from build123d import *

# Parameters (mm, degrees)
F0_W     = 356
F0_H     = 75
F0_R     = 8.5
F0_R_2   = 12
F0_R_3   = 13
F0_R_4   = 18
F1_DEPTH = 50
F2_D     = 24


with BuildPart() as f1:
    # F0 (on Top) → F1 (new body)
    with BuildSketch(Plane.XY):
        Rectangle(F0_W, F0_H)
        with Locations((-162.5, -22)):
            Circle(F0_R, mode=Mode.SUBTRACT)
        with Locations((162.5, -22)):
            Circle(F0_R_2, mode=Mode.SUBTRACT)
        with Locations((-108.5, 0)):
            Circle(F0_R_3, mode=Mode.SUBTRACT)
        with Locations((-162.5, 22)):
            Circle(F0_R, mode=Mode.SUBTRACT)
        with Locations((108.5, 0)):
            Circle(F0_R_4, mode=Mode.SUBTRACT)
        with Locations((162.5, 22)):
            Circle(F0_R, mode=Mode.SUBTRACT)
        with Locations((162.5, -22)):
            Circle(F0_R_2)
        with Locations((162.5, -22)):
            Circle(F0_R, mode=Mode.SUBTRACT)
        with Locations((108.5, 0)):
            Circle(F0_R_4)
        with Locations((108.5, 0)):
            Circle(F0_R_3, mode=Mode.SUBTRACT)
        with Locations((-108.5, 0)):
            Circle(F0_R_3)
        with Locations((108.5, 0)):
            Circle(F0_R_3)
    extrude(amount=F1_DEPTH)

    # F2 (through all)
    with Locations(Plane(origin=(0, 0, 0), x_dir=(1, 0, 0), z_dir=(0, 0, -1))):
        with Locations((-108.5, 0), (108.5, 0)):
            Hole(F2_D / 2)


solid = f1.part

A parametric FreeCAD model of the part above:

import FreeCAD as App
import Part
import Sketcher
Q = App.Units.Quantity

doc = App.newDocument("Part")
body = doc.addObject("PartDesign::Body", "Body")

sketch1 = body.newObject("Sketcher::SketchObject", "Sketch")
sketch1.AttachmentSupport = (doc.getObject("XY_Plane"), [""])
sketch1.MapMode = "FlatFace"
sketch1.addGeometry([
    Part.LineSegment(App.Vector(-178, 37.5, 0), App.Vector(-178, -37.5, 0)),
    Part.LineSegment(App.Vector(-178, -37.5, 0), App.Vector(178, -37.5, 0)),
    Part.LineSegment(App.Vector(178, -37.5, 0), App.Vector(178, 37.5, 0)),
    Part.LineSegment(App.Vector(178, 37.5, 0), App.Vector(-178, 37.5, 0)),
    Part.Circle(App.Vector(-162.5, -22, 0), App.Vector(0, 0, 1), 8.5),
    Part.Circle(App.Vector(162.5, -22, 0), App.Vector(0, 0, 1), 8.5),
    Part.Circle(App.Vector(-162.5, 22, 0), App.Vector(0, 0, 1), 8.5),
    Part.Circle(App.Vector(162.5, 22, 0), App.Vector(0, 0, 1), 8.5),
], False)
sketch1.addConstraint([
    Sketcher.Constraint("Coincident", 0, 2, 1, 1),
    Sketcher.Constraint("Coincident", 1, 2, 2, 1),
    Sketcher.Constraint("Coincident", 2, 2, 3, 1),
    Sketcher.Constraint("Coincident", 3, 2, 0, 1),
    Sketcher.Constraint("Vertical", 0),
    Sketcher.Constraint("Horizontal", 1),
    Sketcher.Constraint("Vertical", 2),
    Sketcher.Constraint("Horizontal", 3),
    Sketcher.Constraint("Equal", 4, 5),
    Sketcher.Constraint("Equal", 5, 6),
    Sketcher.Constraint("Equal", 6, 7),
    Sketcher.Constraint("Symmetric", 5, 3, 6, 3, -1, 1),
    Sketcher.Constraint("Symmetric", 4, 3, 7, 3, -1, 1),
    Sketcher.Constraint("Symmetric", 0, 2, 2, 2, -1, 1),
    Sketcher.Constraint("Symmetric", 4, 3, 5, 3, -2),
    Sketcher.Constraint("Diameter", 4, Q("17 mm")),
    Sketcher.Constraint("DistanceX", 1, 1, 1, 2, Q("356 mm")),
    Sketcher.Constraint("DistanceY", 0, 2, 0, 1, Q("75 mm")),
    Sketcher.Constraint("DistanceY", 4, 3, -1, 1, Q("22 mm")),
    Sketcher.Constraint("DistanceX", 4, 3, 5, 3, Q("325 mm")),
])
pad1 = body.newObject("PartDesign::Pad", "Pad")
pad1.Profile = sketch1
pad1.Length = 50

sketch2 = body.newObject("Sketcher::SketchObject", "Sketch001")
sketch2.AttachmentSupport = (doc.getObject("XY_Plane"), [""])
sketch2.MapMode = "FlatFace"
sketch2.addGeometry([
    Part.Circle(App.Vector(-108.5, 0, 0), App.Vector(0, 0, 1), 12),
    Part.Circle(App.Vector(108.5, 0, 0), App.Vector(0, 0, 1), 12),
], False)
sketch2.addConstraint([
    Sketcher.Constraint("Equal", 0, 1),
    Sketcher.Constraint("Symmetric", 0, 3, 1, 3, -1, 1),
    Sketcher.Constraint("PointOnObject", 0, 3, -1),
    Sketcher.Constraint("Diameter", 0, Q("24 mm")),
    Sketcher.Constraint("DistanceX", 0, 3, 1, 3, Q("217 mm")),
])
doc.recompute()
hole = body.newObject("PartDesign::Hole", "Hole")
hole.Profile = sketch2
hole.ThreadType = "None"
hole.Diameter = 24
hole.DepthType = "ThroughAll"
hole.Reversed = True

doc.recompute()
